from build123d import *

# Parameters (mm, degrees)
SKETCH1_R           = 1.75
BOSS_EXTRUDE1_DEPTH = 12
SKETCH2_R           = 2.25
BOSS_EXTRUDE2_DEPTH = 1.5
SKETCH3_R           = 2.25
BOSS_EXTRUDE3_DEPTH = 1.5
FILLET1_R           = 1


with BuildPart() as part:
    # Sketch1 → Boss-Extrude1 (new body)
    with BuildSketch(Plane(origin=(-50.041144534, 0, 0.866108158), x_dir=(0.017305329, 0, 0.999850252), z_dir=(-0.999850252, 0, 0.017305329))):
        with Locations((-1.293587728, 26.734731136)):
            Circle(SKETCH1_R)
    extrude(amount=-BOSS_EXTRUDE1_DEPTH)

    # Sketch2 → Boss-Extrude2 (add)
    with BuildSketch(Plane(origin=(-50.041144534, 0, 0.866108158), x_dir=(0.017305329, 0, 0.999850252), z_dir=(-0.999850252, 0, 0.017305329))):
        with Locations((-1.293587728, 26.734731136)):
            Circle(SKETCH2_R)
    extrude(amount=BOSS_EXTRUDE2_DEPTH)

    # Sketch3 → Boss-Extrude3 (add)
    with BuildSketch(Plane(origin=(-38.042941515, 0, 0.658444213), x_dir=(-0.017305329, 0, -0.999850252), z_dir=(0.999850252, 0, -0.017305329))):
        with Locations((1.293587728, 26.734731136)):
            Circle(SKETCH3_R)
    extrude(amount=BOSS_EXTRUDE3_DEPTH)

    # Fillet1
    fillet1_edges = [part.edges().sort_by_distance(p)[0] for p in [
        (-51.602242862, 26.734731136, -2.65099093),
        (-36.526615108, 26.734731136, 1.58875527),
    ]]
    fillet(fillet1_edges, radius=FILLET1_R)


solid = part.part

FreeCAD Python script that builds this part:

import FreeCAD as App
import Part
import Sketcher
from FreeCAD import Vector


def edges_at(feature, points):
    """Names of the edges that pass closest to the given points."""
    edges = feature.Shape.Edges
    near = lambda p: min(range(len(edges)), key=lambda i: edges[i].distToShape(Part.Vertex(*p))[0])
    return sorted({f"Edge{near(p) + 1}" for p in points})

doc = App.newDocument("Part")
body = doc.addObject("PartDesign::Body", "Body")

# Sketch on an angled plane
sketch1 = doc.addObject("Sketcher::SketchObject", "Sketch")
body.addObject(sketch1)
sketch1.Placement = App.Placement(Vector(-50.041145, 0, 0.866108), App.Rotation(Vector(0.017305329, 0, 0.999850252), Vector(0, 1.000000001, 0), Vector(-0.999850252, 0, 0.017305329), "ZXY"))
sketch1.addGeometry(Part.Circle(Vector(-1.3, 26.7, 0), Vector(0, 0, 1), 1.8), False)
sketch1.addConstraint(Sketcher.Constraint("Diameter", 0, 3.5))
sketch1.addConstraint(Sketcher.Constraint("DistanceY", -1, 1, 0, 3, 26.734731))
sketch1.addConstraint(Sketcher.Constraint("DistanceX", 0, 3, -1, 1, 1.293588))
pad1 = doc.addObject("PartDesign::Pad", "Pad")
body.addObject(pad1)
pad1.Profile = sketch1
pad1.Length = 12
pad1.Reversed = True

# Sketch on an angled plane
sketch2 = doc.addObject("Sketcher::SketchObject", "Sketch001")
body.addObject(sketch2)
sketch2.Placement = App.Placement(Vector(-50.041145, 0, 0.866108), App.Rotation(Vector(0.017305329, 0, 0.999850252), Vector(0, 1.000000001, 0), Vector(-0.999850252, 0, 0.017305329), "ZXY"))
sketch2.addGeometry(Part.Circle(Vector(-1.3, 26.7, 0), Vector(0, 0, 1), 2.2), False)
sketch2.addConstraint(Sketcher.Constraint("Diameter", 0, 4.5))
sketch2.addConstraint(Sketcher.Constraint("DistanceY", -1, 1, 0, 3, 26.734731))
sketch2.addConstraint(Sketcher.Constraint("DistanceX", 0, 3, -1, 1, 1.293588))
pad2 = doc.addObject("PartDesign::Pad", "Pad001")
body.addObject(pad2)
pad2.Profile = sketch2
pad2.Length = 1.5

# Sketch on an angled plane
sketch3 = doc.addObject("Sketcher::SketchObject", "Sketch002")
body.addObject(sketch3)
sketch3.Placement = App.Placement(Vector(-38.042942, 0, 0.658444), App.Rotation(Vector(-0.017305329, 0, -0.999850252), Vector(0, 1.000000001, 0), Vector(0.999850252, 0, -0.017305329), "ZXY"))
sketch3.addGeometry(Part.Circle(Vector(1.3, 26.7, 0), Vector(0, 0, 1), 2.2), False)
sketch3.addConstraint(Sketcher.Constraint("Diameter", 0, 4.5))
sketch3.addConstraint(Sketcher.Constraint("DistanceY", -1, 1, 0, 3, 26.734731))
sketch3.addConstraint(Sketcher.Constraint("DistanceX", -1, 1, 0, 3, 1.293588))
pad3 = doc.addObject("PartDesign::Pad", "Pad002")
body.addObject(pad3)
pad3.Profile = sketch3
pad3.Length = 1.5
doc.recompute()

fillet = doc.addObject("PartDesign::Fillet", "Fillet")
body.addObject(fillet)
fillet.Base = (pad3, edges_at(pad3, [(-51.602, 26.735, -2.651), (-36.527, 26.735, 1.589)]))
fillet.Radius = 1

doc.recompute()
